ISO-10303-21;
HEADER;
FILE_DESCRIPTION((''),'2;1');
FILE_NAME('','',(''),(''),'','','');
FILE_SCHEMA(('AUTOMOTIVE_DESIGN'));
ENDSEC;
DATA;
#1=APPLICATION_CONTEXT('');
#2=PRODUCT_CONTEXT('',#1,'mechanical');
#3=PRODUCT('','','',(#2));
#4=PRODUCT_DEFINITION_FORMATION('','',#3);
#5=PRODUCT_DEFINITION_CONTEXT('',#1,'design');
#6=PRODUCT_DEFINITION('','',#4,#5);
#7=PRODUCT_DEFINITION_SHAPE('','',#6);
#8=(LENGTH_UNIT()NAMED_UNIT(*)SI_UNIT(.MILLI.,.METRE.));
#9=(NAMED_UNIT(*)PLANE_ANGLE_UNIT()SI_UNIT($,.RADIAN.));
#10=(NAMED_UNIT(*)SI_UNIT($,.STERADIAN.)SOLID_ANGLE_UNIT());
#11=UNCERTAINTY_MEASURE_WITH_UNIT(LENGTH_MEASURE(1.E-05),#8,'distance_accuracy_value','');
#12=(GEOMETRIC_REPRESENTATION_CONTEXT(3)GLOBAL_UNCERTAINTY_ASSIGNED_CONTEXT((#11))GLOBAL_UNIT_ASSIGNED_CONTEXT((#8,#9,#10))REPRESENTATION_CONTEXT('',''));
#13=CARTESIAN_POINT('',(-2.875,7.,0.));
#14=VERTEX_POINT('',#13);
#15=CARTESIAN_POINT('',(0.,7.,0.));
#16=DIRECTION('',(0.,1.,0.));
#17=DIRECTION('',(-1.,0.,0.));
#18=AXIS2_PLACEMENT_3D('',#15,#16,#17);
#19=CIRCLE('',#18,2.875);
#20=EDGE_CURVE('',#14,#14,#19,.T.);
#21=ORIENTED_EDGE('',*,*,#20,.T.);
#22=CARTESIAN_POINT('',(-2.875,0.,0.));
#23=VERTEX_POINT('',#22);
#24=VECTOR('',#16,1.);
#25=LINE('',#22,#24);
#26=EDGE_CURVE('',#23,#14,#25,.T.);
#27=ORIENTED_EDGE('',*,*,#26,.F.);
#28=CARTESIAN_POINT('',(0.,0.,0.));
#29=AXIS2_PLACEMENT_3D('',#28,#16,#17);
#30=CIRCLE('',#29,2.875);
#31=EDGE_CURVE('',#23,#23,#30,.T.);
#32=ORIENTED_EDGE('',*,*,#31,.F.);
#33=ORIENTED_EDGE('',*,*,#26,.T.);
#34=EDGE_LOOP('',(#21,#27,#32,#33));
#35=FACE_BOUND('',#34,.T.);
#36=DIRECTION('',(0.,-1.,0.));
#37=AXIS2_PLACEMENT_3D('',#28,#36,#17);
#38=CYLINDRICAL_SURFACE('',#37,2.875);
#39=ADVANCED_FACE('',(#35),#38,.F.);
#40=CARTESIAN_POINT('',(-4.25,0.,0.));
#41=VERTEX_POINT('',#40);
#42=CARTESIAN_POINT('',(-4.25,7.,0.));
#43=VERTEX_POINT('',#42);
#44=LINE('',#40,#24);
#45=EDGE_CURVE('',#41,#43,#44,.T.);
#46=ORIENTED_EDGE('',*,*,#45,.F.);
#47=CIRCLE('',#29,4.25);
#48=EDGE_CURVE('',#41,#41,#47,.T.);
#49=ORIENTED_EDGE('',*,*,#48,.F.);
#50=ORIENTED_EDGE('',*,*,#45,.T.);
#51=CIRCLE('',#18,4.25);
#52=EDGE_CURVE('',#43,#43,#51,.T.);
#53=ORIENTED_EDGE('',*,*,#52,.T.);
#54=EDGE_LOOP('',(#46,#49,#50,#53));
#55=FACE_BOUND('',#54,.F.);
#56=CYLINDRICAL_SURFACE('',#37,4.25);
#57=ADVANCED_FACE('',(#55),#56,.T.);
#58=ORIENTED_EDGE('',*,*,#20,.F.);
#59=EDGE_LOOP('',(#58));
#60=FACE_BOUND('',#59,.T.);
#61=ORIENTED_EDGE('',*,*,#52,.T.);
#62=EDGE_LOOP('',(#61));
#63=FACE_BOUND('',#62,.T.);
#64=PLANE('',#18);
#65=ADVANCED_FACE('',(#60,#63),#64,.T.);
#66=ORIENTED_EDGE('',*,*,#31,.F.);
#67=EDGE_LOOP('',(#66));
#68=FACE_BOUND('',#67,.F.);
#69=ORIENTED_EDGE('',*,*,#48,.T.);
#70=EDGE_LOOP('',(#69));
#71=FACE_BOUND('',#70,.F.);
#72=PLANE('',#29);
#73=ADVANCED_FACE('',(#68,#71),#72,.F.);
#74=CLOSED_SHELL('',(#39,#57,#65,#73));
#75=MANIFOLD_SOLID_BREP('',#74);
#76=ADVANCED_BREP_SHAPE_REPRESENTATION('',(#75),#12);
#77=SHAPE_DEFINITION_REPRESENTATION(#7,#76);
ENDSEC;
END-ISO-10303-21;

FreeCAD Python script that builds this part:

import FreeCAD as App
import Part
import Sketcher

V = App.Vector

doc = App.newDocument("Part")
body = doc.addObject("PartDesign::Body", "Body")

# Sketch on XZ plane
sketch1 = doc.addObject("Sketcher::SketchObject", "Sketch")
body.addObject(sketch1)
sketch1.AttachmentSupport = (doc.XZ_Plane, [""])
sketch1.MapMode = "FlatFace"
sketch1.addGeometry([
    Part.Circle(V(0, 0, 0), V(0, 0, 1), 4.2),
    Part.Circle(V(0, 0, 0), V(0, 0, 1), 2.9),
], False)
sketch1.addConstraint([
    Sketcher.Constraint("Coincident", 0, 3, -1, 1),
    Sketcher.Constraint("Coincident", 1, 3, -1, 1),
    Sketcher.Constraint("Diameter", 0, 8.5),
    Sketcher.Constraint("Diameter", 1, 5.75),
])
pad1 = doc.addObject("PartDesign::Pad", "Pad")
body.addObject(pad1)
pad1.Profile = sketch1
pad1.Length = 7
pad1.Reversed = True

doc.recompute()
